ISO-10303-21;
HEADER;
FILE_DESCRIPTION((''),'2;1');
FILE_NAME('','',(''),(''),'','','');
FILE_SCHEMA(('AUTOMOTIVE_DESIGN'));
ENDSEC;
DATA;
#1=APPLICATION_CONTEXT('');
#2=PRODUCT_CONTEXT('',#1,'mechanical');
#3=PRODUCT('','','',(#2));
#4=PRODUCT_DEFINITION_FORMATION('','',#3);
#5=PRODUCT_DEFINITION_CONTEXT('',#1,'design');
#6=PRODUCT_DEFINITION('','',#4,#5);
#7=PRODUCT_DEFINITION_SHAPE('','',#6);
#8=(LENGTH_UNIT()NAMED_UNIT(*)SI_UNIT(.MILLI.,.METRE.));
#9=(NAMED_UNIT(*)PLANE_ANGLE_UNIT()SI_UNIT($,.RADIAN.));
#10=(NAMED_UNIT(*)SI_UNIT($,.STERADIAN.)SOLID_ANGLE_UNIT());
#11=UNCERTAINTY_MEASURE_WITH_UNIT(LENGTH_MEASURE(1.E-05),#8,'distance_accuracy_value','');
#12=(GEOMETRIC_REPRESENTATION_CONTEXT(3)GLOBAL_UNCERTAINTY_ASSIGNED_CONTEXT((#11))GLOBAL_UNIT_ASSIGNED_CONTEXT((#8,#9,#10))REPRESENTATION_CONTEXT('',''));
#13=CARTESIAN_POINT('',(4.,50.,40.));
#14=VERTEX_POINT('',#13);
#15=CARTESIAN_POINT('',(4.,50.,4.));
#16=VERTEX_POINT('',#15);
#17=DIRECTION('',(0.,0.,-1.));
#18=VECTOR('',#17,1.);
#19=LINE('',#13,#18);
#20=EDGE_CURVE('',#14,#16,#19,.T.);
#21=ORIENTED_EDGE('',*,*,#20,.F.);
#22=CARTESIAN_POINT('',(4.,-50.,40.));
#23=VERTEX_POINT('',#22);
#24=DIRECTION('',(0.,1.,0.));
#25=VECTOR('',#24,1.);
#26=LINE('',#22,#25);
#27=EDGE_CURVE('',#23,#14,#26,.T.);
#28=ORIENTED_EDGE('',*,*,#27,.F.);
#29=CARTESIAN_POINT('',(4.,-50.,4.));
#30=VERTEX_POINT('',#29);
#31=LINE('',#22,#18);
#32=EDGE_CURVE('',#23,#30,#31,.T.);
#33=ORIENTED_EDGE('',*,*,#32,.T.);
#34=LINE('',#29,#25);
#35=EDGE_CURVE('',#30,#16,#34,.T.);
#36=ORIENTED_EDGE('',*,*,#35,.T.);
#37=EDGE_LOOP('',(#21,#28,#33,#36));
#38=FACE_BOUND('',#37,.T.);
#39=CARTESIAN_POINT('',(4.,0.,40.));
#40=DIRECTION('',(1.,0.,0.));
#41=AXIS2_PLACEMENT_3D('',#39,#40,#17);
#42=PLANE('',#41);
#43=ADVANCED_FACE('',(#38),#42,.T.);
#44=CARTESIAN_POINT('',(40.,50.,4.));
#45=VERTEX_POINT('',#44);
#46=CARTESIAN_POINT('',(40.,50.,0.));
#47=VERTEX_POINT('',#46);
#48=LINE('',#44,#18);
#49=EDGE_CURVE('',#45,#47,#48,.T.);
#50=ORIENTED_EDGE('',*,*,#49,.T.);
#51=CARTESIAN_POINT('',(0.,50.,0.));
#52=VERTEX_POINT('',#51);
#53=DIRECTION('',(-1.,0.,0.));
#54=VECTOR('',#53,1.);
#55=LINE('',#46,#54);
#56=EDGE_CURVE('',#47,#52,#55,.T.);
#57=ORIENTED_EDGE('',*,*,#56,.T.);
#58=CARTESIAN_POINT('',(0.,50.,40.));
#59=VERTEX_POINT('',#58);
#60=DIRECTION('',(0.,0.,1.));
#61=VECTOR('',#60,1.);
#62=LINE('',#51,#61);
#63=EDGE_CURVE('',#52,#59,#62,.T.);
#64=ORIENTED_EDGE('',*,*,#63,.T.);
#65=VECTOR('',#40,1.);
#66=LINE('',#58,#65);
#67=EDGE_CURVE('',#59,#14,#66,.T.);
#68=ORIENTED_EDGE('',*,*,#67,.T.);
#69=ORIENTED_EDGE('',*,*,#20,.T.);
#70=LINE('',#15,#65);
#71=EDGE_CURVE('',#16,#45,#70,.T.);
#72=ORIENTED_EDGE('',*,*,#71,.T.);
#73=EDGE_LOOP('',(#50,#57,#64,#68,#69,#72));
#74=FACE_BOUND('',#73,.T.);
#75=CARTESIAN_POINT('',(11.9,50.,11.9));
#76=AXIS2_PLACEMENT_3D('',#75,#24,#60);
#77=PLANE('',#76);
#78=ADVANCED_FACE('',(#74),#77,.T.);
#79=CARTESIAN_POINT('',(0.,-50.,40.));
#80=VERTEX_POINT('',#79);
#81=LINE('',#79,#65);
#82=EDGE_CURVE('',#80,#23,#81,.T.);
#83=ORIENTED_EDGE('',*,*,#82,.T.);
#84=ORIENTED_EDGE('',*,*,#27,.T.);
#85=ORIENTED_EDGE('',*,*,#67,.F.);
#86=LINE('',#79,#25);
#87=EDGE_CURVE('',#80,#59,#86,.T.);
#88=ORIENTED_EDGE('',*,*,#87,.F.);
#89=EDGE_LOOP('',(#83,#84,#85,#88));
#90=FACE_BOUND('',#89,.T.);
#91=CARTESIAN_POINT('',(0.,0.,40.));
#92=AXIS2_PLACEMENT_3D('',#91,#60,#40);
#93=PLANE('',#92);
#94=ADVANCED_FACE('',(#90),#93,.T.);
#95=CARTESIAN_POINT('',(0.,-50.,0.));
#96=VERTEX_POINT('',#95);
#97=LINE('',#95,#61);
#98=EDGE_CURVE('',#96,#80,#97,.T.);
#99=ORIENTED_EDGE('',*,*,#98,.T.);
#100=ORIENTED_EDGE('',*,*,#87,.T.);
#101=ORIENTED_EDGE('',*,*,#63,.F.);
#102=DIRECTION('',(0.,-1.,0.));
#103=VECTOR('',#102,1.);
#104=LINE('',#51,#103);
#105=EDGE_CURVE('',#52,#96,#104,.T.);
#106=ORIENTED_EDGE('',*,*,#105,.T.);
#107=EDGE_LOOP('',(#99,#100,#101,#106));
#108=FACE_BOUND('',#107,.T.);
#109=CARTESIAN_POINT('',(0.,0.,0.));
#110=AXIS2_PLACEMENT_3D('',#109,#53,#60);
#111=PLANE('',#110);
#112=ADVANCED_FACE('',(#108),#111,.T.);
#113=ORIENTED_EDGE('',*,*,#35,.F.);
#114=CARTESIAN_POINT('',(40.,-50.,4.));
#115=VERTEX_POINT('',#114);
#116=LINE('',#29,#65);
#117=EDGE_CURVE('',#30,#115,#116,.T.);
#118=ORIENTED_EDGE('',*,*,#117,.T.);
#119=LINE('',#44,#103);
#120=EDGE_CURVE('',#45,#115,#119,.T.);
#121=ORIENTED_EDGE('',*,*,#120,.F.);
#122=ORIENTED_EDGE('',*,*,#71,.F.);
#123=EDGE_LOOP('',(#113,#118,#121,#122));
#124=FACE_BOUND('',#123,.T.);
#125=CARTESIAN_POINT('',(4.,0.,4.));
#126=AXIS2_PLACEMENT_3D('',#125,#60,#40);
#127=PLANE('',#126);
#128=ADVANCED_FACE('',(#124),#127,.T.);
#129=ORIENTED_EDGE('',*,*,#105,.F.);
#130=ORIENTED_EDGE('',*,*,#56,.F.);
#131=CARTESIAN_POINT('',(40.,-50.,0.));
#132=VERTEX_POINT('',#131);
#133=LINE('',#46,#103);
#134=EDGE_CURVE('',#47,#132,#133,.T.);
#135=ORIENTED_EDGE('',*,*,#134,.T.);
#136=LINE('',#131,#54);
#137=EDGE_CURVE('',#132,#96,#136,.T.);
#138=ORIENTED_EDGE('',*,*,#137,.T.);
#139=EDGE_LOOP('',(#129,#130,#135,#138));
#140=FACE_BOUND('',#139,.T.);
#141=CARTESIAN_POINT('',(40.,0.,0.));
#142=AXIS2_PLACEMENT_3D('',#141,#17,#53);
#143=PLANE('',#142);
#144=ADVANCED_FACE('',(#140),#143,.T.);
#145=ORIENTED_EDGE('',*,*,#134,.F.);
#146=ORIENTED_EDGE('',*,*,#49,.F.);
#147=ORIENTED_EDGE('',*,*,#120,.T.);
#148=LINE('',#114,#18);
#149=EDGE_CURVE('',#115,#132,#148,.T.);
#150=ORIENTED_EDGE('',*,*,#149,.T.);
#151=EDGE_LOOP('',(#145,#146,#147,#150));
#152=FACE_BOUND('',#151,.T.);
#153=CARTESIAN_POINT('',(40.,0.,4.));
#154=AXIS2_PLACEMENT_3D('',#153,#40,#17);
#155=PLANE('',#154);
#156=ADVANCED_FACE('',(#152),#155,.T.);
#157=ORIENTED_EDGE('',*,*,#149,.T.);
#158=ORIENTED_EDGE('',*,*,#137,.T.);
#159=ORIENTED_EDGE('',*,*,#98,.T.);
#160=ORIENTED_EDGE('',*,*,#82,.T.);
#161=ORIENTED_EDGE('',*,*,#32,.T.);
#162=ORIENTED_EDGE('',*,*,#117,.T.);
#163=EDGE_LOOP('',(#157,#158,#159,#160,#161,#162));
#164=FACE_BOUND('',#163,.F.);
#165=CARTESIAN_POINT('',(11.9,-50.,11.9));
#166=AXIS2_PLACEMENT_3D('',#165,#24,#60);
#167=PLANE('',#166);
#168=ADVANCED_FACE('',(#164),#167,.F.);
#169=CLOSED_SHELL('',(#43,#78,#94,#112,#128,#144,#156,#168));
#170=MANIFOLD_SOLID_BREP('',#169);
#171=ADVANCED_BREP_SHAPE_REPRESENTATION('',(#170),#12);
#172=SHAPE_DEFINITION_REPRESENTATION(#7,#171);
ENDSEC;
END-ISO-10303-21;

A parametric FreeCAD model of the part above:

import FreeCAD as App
import Part
import Sketcher

V = App.Vector
Q = App.Units.Quantity


def add_polygon(sketch, points):
    """Adds a closed chain of lines whose ends are joined by coincident constraints."""
    first, n = sketch.GeometryCount, len(points)
    for a, b in zip(points, points[1:] + points[:1]):
        sketch.addGeometry(Part.LineSegment(App.Vector(*a, 0), App.Vector(*b, 0)), False)
    for i in range(n):
        sketch.addConstraint(Sketcher.Constraint("Coincident", first + i, 2, first + (i + 1) % n, 1))

doc = App.newDocument("Part")
body = doc.addObject("PartDesign::Body", "Body")

sketch1 = body.newObject("Sketcher::SketchObject", "Sketch")
sketch1.AttachmentSupport = (doc.getObject("XZ_Plane"), [""])
sketch1.MapMode = "FlatFace"
add_polygon(sketch1, [(0, 40), (0, 0), (40, 0), (40, 4), (4, 4), (4, 40)])
sketch1.addConstraint([
    Sketcher.Constraint("Vertical", 0),
    Sketcher.Constraint("Horizontal", 1),
    Sketcher.Constraint("Vertical", 2),
    Sketcher.Constraint("Horizontal", 3),
    Sketcher.Constraint("Vertical", 4),
    Sketcher.Constraint("Horizontal", 5),
    Sketcher.Constraint("Coincident", 0, 2, -1, 1),
    Sketcher.Constraint("Equal", 1, 0),
    Sketcher.Constraint("Equal", 5, 2),
    Sketcher.Constraint("DistanceX", 1, 1, 1, 2, Q("40 mm")),
    Sketcher.Constraint("DistanceX", 3, 2, 3, 1, Q("36 mm")),
])
pad1 = body.newObject("PartDesign::Pad", "Pad")
pad1.Profile = sketch1
pad1.Length = 100
pad1.Midplane = True

doc.recompute()
